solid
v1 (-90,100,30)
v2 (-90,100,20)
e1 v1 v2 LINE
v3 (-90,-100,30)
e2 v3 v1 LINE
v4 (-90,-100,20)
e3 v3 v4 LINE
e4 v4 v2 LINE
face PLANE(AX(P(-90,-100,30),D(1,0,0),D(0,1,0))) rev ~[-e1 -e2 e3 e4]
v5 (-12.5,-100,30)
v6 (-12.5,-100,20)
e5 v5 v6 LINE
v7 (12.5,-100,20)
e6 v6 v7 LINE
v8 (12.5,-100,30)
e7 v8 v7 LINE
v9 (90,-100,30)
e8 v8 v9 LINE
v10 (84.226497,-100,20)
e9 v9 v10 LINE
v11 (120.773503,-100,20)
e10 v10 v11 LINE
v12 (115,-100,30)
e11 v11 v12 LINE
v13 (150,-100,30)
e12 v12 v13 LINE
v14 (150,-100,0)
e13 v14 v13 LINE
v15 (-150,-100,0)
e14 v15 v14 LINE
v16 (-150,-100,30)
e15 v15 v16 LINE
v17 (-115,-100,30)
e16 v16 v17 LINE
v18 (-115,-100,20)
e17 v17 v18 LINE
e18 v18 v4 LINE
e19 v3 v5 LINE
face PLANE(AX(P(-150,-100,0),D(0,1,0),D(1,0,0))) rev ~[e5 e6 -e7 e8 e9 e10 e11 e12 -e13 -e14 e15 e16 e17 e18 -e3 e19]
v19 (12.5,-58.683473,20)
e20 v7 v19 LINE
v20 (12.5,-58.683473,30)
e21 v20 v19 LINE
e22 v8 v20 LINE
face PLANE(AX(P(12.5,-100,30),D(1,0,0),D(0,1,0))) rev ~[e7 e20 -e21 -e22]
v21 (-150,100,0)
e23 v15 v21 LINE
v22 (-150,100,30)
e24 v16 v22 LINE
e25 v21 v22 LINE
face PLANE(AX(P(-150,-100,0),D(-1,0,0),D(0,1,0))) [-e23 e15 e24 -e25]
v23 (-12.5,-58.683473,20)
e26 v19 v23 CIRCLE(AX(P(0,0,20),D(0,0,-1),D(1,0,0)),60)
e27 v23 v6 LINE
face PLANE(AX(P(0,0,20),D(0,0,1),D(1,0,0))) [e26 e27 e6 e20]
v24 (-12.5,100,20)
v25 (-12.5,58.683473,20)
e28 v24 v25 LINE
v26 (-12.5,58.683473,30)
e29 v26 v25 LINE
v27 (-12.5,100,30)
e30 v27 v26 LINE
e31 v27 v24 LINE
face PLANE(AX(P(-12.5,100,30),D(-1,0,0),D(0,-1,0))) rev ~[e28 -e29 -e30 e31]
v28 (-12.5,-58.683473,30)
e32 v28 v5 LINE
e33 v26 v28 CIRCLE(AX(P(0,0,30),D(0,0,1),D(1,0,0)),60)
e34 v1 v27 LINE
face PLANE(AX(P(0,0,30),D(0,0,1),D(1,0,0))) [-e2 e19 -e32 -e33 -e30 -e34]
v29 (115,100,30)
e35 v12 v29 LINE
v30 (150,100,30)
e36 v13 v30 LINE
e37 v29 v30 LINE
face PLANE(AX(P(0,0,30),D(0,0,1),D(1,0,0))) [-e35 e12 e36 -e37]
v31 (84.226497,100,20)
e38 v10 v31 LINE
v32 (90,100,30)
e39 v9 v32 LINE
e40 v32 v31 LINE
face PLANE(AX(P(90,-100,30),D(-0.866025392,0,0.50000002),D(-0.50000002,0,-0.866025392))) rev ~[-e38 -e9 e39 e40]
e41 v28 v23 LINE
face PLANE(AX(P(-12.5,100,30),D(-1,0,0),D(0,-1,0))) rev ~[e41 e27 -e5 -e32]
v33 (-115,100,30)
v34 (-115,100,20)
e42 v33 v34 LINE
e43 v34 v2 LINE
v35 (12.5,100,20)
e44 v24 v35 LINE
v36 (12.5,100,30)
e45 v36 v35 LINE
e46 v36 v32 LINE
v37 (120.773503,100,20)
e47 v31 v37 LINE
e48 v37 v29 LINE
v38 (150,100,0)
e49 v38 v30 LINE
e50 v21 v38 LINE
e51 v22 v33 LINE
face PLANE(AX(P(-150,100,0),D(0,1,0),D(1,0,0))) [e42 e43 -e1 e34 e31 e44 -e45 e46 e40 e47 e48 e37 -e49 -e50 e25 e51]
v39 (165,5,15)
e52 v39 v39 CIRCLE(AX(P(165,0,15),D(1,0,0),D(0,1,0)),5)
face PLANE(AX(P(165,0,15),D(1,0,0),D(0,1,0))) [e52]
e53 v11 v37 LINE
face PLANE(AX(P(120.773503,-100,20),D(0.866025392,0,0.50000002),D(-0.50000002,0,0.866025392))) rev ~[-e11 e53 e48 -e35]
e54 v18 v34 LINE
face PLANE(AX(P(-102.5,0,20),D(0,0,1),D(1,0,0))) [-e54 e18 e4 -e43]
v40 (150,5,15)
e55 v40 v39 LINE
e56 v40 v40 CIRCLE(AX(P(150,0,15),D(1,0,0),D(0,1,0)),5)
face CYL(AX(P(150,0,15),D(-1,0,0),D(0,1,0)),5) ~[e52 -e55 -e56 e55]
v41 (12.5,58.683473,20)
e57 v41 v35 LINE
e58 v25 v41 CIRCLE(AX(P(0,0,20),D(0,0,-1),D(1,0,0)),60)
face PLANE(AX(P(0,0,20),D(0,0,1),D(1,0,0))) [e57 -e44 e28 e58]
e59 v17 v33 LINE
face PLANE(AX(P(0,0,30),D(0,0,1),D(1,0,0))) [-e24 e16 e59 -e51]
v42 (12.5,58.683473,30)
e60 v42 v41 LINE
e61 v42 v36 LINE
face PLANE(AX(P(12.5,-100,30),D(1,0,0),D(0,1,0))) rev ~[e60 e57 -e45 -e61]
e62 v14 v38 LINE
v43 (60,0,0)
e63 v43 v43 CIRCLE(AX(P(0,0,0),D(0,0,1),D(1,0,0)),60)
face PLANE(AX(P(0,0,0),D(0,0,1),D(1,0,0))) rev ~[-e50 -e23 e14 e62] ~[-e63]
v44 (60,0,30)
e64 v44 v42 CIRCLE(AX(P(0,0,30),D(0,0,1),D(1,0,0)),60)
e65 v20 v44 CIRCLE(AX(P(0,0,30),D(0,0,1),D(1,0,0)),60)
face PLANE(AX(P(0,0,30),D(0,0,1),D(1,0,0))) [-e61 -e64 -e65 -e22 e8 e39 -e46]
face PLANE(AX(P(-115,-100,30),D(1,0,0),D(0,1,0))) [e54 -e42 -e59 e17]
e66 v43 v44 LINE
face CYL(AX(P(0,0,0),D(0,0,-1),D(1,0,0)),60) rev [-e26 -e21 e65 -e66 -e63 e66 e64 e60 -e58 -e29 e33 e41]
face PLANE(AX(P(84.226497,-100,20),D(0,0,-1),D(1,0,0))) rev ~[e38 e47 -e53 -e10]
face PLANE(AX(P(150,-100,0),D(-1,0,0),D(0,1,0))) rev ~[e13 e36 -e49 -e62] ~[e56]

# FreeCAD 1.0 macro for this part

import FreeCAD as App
import Part
import Sketcher
from FreeCAD import Vector
Q = App.Units.Quantity

doc = App.newDocument("Part")
body = doc.addObject("PartDesign::Body", "Body")

# Sketch on XY plane
sketch1 = doc.addObject("Sketcher::SketchObject", "Sketch")
body.addObject(sketch1)
sketch1.AttachmentSupport = (doc.XY_Plane, [""])
sketch1.MapMode = "FlatFace"
sketch1.addGeometry([
    Part.LineSegment(Vector(-150, 100, 0), Vector(-150, -100, 0)),  # 0
    Part.LineSegment(Vector(-150, -100, 0), Vector(150, -100, 0)),  # 1
    Part.LineSegment(Vector(150, -100, 0), Vector(150, 100, 0)),  # 2
    Part.LineSegment(Vector(150, 100, 0), Vector(-150, 100, 0)),  # 3
    Part.Circle(Vector(0, 0, 0), Vector(0, 0, 1), 60),  # 4
], False)
sketch1.addConstraint([
    Sketcher.Constraint("Coincident", 0, 2, 1, 1),
    Sketcher.Constraint("Coincident", 1, 2, 2, 1),
    Sketcher.Constraint("Coincident", 2, 2, 3, 1),
    Sketcher.Constraint("Coincident", 3, 2, 0, 1),
    Sketcher.Constraint("Vertical", 0),
    Sketcher.Constraint("Horizontal", 1),
    Sketcher.Constraint("Vertical", 2),
    Sketcher.Constraint("Horizontal", 3),
    Sketcher.Constraint("Coincident", 4, 3, -1, 1),
    Sketcher.Constraint("Symmetric", 0, 2, 2, 2, -1, 1),
    Sketcher.Constraint("Diameter", 4, Q("120 mm")),
    Sketcher.Constraint("DistanceX", 1, 1, 1, 2, Q("300 mm")),
    Sketcher.Constraint("DistanceY", 0, 2, 0, 1, Q("200 mm")),
])
pad1 = doc.addObject("PartDesign::Pad", "Pad")
body.addObject(pad1)
pad1.Profile = sketch1
pad1.Length = 30

# Sketch on XY plane
sketch2 = doc.addObject("Sketcher::SketchObject", "Sketch001")
body.addObject(sketch2)
sketch2.AttachmentSupport = (doc.XY_Plane, [""])
sketch2.MapMode = "FlatFace"
sketch2.AttachmentOffset = App.Placement(Vector(0, 0, 30), App.Rotation())
sketch2.addGeometry([
    Part.LineSegment(Vector(-115, 100, 0), Vector(-115, -100, 0)),  # 0
    Part.LineSegment(Vector(-115, -100, 0), Vector(-90, -100, 0)),  # 1
    Part.LineSegment(Vector(-90, -100, 0), Vector(-90, 100, 0)),  # 2
    Part.LineSegment(Vector(-90, 100, 0), Vector(-115, 100, 0)),  # 3
    Part.LineSegment(Vector(-12, -100, 0), Vector(12, -100, 0)),  # 4
    Part.LineSegment(Vector(12, -100, 0), Vector(12, 100, 0)),  # 5
    Part.LineSegment(Vector(12, 100, 0), Vector(-12, 100, 0)),  # 6
    Part.LineSegment(Vector(-12, 100, 0), Vector(-12, -100, 0)),  # 7
], False)
sketch2.addConstraint([
    Sketcher.Constraint("Coincident", 0, 2, 1, 1),
    Sketcher.Constraint("Coincident", 1, 2, 2, 1),
    Sketcher.Constraint("Coincident", 2, 2, 3, 1),
    Sketcher.Constraint("Coincident", 3, 2, 0, 1),
    Sketcher.Constraint("Coincident", 4, 2, 5, 1),
    Sketcher.Constraint("Coincident", 5, 2, 6, 1),
    Sketcher.Constraint("Coincident", 6, 2, 7, 1),
    Sketcher.Constraint("Coincident", 7, 2, 4, 1),
    Sketcher.Constraint("Vertical", 0),
    Sketcher.Constraint("Horizontal", 1),
    Sketcher.Constraint("Vertical", 2),
    Sketcher.Constraint("Horizontal", 3),
    Sketcher.Constraint("Horizontal", 4),
    Sketcher.Constraint("Vertical", 5),
    Sketcher.Constraint("Horizontal", 6),
    Sketcher.Constraint("Vertical", 7),
    Sketcher.Constraint("Symmetric", 4, 2, 6, 2, -1, 1),
    Sketcher.Constraint("Horizontal", 1, 2, 4, 2),
    Sketcher.Constraint("Horizontal", 3, 2, 5, 2),
    Sketcher.Constraint("Equal", 3, 4),
    Sketcher.Constraint("DistanceX", 1, 1, 1, 2, Q("25 mm")),
    Sketcher.Constraint("DistanceY", 0, 2, 0, 1, Q("200 mm")),
    Sketcher.Constraint("DistanceX", 0, 2, -1, 1, Q("115 mm")),
])
pocket1 = doc.addObject("PartDesign::Pocket", "Pocket")
body.addObject(pocket1)
pocket1.Profile = sketch2
pocket1.Length = 10

# Sketch on XZ plane
sketch3 = doc.addObject("Sketcher::SketchObject", "Sketch002")
body.addObject(sketch3)
sketch3.AttachmentSupport = (doc.XZ_Plane, [""])
sketch3.MapMode = "FlatFace"
sketch3.AttachmentOffset = App.Placement(Vector(0, 0, 100), App.Rotation())
sketch3.addGeometry([
    Part.LineSegment(Vector(115, 30, 0), Vector(90, 30, 0)),
    Part.LineSegment(Vector(90, 30, 0), Vector(84, 20, 0)),
    Part.LineSegment(Vector(84, 20, 0), Vector(121, 20, 0)),
    Part.LineSegment(Vector(121, 20, 0), Vector(115, 30, 0)),
], False)
sketch3.addConstraint([
    Sketcher.Constraint("Coincident", 0, 2, 1, 1),
    Sketcher.Constraint("Coincident", 1, 2, 2, 1),
    Sketcher.Constraint("Coincident", 2, 2, 3, 1),
    Sketcher.Constraint("Coincident", 3, 2, 0, 1),
    Sketcher.Constraint("Horizontal", 0),
    Sketcher.Constraint("Horizontal", 2),
    Sketcher.Constraint("Equal", 1, 3),
    Sketcher.Constraint("DistanceX", 0, 2, 0, 1, Q("25 mm")),
    Sketcher.Constraint("Angle", 1, Q("-120.000001 deg")),
    Sketcher.Constraint("DistanceX", -1, 1, 0, 2, Q("90 mm")),
    Sketcher.Constraint("DistanceY", -1, 1, 0, 2, Q("30 mm")),
    Sketcher.Constraint("DistanceY", -1, 1, 1, 2, Q("20 mm")),
])
pocket2 = doc.addObject("PartDesign::Pocket", "Pocket001")
body.addObject(pocket2)
pocket2.Profile = sketch3
pocket2.Type = "ThroughAll"

# Sketch on YZ plane
sketch4 = doc.addObject("Sketcher::SketchObject", "Sketch003")
body.addObject(sketch4)
sketch4.AttachmentSupport = (doc.YZ_Plane, [""])
sketch4.MapMode = "FlatFace"
sketch4.AttachmentOffset = App.Placement(Vector(0, 0, 150), App.Rotation())
sketch4.addGeometry(Part.Circle(Vector(0, 15, 0), Vector(0, 0, 1), 5), False)
sketch4.addConstraint([
    Sketcher.Constraint("PointOnObject", 0, 3, -2),
    Sketcher.Constraint("Diameter", 0, Q("10 mm")),
    Sketcher.Constraint("DistanceY", -1, 1, 0, 3, Q("15 mm")),
])
pad2 = doc.addObject("PartDesign::Pad", "Pad001")
body.addObject(pad2)
pad2.Profile = sketch4
pad2.Length = 15

doc.recompute()
